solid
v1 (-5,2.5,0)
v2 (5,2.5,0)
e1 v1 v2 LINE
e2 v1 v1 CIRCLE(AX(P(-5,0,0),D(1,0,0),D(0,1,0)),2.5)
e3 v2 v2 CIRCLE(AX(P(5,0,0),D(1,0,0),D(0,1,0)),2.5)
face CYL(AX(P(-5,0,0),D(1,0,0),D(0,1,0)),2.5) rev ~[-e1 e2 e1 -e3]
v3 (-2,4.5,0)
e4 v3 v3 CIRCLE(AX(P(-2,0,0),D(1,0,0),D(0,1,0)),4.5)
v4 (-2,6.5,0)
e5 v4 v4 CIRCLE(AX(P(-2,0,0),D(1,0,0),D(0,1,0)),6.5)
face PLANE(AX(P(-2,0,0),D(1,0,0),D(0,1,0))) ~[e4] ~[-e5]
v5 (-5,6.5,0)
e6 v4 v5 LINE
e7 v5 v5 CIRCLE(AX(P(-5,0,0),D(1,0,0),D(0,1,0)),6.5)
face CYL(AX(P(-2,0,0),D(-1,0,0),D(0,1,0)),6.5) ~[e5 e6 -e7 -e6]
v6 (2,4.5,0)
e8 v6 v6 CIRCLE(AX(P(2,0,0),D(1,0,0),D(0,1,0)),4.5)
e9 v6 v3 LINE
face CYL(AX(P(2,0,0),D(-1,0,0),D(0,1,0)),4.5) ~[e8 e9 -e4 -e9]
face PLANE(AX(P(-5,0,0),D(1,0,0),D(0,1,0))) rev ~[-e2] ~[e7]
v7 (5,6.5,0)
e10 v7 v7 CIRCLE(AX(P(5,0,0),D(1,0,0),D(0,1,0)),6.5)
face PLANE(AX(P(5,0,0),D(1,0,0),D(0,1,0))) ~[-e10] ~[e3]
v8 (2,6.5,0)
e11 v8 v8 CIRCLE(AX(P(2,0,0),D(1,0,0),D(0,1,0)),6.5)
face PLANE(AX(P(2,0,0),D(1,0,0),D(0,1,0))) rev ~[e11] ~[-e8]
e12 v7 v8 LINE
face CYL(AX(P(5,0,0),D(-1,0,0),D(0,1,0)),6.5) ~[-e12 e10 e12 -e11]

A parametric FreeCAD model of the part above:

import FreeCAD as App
import Part
import Sketcher


def add_polygon(sketch, points):
    """Adds a closed chain of lines whose ends are joined by coincident constraints."""
    first, n = sketch.GeometryCount, len(points)
    for a, b in zip(points, points[1:] + points[:1]):
        sketch.addGeometry(Part.LineSegment(App.Vector(*a, 0), App.Vector(*b, 0)), False)
    for i in range(n):
        sketch.addConstraint(Sketcher.Constraint("Coincident", first + i, 2, first + (i + 1) % n, 1))

doc = App.newDocument("Part")
body = doc.addObject("PartDesign::Body", "Body")

sketch1 = body.newObject("Sketcher::SketchObject", "Sketch")
sketch1.AttachmentSupport = (doc.getObject("XY_Plane"), [""])
sketch1.MapMode = "FlatFace"
add_polygon(sketch1, [(-5, 6.5), (-5, 2.5), (5, 2.5), (5, 6.5), (2, 6.5), (2, 4.5), (-2, 4.5), (-2, 6.5)])
sketch1.addConstraint([
    Sketcher.Constraint("Vertical", 0),
    Sketcher.Constraint("Horizontal", 1),
    Sketcher.Constraint("Vertical", 2),
    Sketcher.Constraint("Horizontal", 3),
    Sketcher.Constraint("Vertical", 4),
    Sketcher.Constraint("Horizontal", 5),
    Sketcher.Constraint("Vertical", 6),
    Sketcher.Constraint("Horizontal", 7),
    Sketcher.Constraint("Symmetric", 3, 2, 6, 2, -2),
    Sketcher.Constraint("Equal", 3, 7),
    Sketcher.Constraint("Equal", 5, 0),
    Sketcher.Constraint("DistanceX", 1, 1, 1, 2, 10.0),
    Sketcher.Constraint("DistanceX", 3, 2, 3, 1, 3.0),
    Sketcher.Constraint("DistanceY", 4, 2, 4, 1, 2.0),
    Sketcher.Constraint("DistanceY", -1, 1, 0, 2, 2.5),
])
revolution = body.newObject("PartDesign::Revolution", "Revolution")
revolution.Profile = sketch1
revolution.ReferenceAxis = (sketch1, ["H_Axis"])
revolution.Angle = 360

doc.recompute()
